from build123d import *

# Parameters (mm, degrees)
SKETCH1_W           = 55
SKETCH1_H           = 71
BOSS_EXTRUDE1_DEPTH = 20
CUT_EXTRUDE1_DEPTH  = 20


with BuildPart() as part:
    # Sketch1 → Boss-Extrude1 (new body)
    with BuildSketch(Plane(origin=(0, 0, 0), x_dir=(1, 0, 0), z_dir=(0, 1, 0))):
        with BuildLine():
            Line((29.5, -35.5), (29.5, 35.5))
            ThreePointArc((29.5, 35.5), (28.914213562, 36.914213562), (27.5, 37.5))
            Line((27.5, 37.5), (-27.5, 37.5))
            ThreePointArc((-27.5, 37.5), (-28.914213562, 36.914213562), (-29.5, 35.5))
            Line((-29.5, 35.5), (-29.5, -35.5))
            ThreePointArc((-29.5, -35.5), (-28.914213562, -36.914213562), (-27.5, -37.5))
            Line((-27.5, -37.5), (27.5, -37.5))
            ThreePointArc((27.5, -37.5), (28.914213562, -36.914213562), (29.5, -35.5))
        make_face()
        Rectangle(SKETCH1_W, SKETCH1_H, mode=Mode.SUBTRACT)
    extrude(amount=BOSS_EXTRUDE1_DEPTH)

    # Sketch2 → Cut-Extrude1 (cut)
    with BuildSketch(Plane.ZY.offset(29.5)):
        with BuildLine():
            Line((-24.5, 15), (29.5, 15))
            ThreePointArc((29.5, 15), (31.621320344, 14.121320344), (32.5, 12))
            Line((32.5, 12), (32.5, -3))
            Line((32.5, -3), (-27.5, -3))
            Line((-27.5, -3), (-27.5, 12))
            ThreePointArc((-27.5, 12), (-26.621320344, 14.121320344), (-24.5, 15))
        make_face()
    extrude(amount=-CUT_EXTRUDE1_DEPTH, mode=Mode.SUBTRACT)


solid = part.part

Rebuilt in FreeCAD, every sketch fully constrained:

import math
import FreeCAD as App
import Part
import Sketcher

V = App.Vector

doc = App.newDocument("Part")
body = doc.addObject("PartDesign::Body", "Body")

sketch1 = body.newObject("Sketcher::SketchObject", "Sketch")
sketch1.AttachmentSupport = (doc.getObject("XZ_Plane"), [""])
sketch1.MapMode = "FlatFace"
sketch1.addGeometry(Part.LineSegment(V(29.5, 35.5, 0), V(29.5, -35.5, 0)), False)
sketch1.addGeometry(Part.ArcOfCircle(Part.Circle(V(27.5, -35.5, 0), V(0, 0, 1), 2), math.radians(-90), math.radians(0)), False)
sketch1.addGeometry(Part.LineSegment(V(27.5, -37.5, 0), V(-27.5, -37.5, 0)), False)
sketch1.addGeometry(Part.ArcOfCircle(Part.Circle(V(-27.5, -35.5, 0), V(0, 0, 1), 2), math.radians(-180), math.radians(-90)), False)
sketch1.addGeometry(Part.LineSegment(V(-29.5, -35.5, 0), V(-29.5, 35.5, 0)), False)
sketch1.addGeometry(Part.ArcOfCircle(Part.Circle(V(-27.5, 35.5, 0), V(0, 0, 1), 2), math.radians(90), math.radians(180)), False)
sketch1.addGeometry(Part.LineSegment(V(-27.5, 37.5, 0), V(27.5, 37.5, 0)), False)
sketch1.addGeometry(Part.ArcOfCircle(Part.Circle(V(27.5, 35.5, 0), V(0, 0, 1), 2), math.radians(0), math.radians(90)), False)
sketch1.addGeometry(Part.LineSegment(V(27.5, 35.5, 0), V(-27.5, 35.5, 0)), False)
sketch1.addGeometry(Part.LineSegment(V(-27.5, 35.5, 0), V(-27.5, -35.5, 0)), False)
sketch1.addGeometry(Part.LineSegment(V(-27.5, -35.5, 0), V(27.5, -35.5, 0)), False)
sketch1.addGeometry(Part.LineSegment(V(27.5, -35.5, 0), V(27.5, 35.5, 0)), False)
sketch1.addConstraint(Sketcher.Constraint("Tangent", 0, 2, 1, 2))
sketch1.addConstraint(Sketcher.Constraint("Tangent", 1, 1, 2, 1))
sketch1.addConstraint(Sketcher.Constraint("Tangent", 2, 2, 3, 2))
sketch1.addConstraint(Sketcher.Constraint("Tangent", 3, 1, 4, 1))
sketch1.addConstraint(Sketcher.Constraint("Tangent", 4, 2, 5, 2))
sketch1.addConstraint(Sketcher.Constraint("Tangent", 5, 1, 6, 1))
sketch1.addConstraint(Sketcher.Constraint("Tangent", 6, 2, 7, 2))
sketch1.addConstraint(Sketcher.Constraint("Tangent", 7, 1, 0, 1))
sketch1.addConstraint(Sketcher.Constraint("Coincident", 8, 2, 9, 1))
sketch1.addConstraint(Sketcher.Constraint("Coincident", 9, 2, 10, 1))
sketch1.addConstraint(Sketcher.Constraint("Coincident", 10, 2, 11, 1))
sketch1.addConstraint(Sketcher.Constraint("Coincident", 11, 2, 8, 1))
sketch1.addConstraint(Sketcher.Constraint("Vertical", 0))
sketch1.addConstraint(Sketcher.Constraint("Horizontal", 2))
sketch1.addConstraint(Sketcher.Constraint("Vertical", 4))
sketch1.addConstraint(Sketcher.Constraint("Horizontal", 6))
sketch1.addConstraint(Sketcher.Constraint("Horizontal", 8))
sketch1.addConstraint(Sketcher.Constraint("Vertical", 9))
sketch1.addConstraint(Sketcher.Constraint("Horizontal", 10))
sketch1.addConstraint(Sketcher.Constraint("Vertical", 11))
sketch1.addConstraint(Sketcher.Constraint("Coincident", 8, 2, 5, 3))
sketch1.addConstraint(Sketcher.Constraint("Coincident", 9, 2, 3, 3))
sketch1.addConstraint(Sketcher.Constraint("Coincident", 10, 2, 1, 3))
sketch1.addConstraint(Sketcher.Constraint("Equal", 5, 7))
sketch1.addConstraint(Sketcher.Constraint("Symmetric", 1, 3, 5, 3, -1, 1))
sketch1.addConstraint(Sketcher.Constraint("Radius", 1, 2.0))
sketch1.addConstraint(Sketcher.Constraint("DistanceX", 2, 2, 2, 1, 55.0))
sketch1.addConstraint(Sketcher.Constraint("DistanceY", 0, 2, 0, 1, 71.0))
pad1 = body.newObject("PartDesign::Pad", "Pad")
pad1.Profile = sketch1
pad1.Length = 20
pad1.Reversed = True

sketch2 = body.newObject("Sketcher::SketchObject", "Sketch001")
sketch2.AttachmentSupport = (doc.getObject("YZ_Plane"), [""])
sketch2.MapMode = "FlatFace"
sketch2.AttachmentOffset = App.Placement(V(0, 0, -29.5), App.Rotation())
sketch2.addGeometry(Part.LineSegment(V(15, 29.5, 0), V(15, -24.5, 0)), False)
sketch2.addGeometry(Part.ArcOfCircle(Part.Circle(V(12, -24.5, 0), V(0, 0, 1), 3), math.radians(-90), math.radians(0)), False)
sketch2.addGeometry(Part.LineSegment(V(12, -27.5, 0), V(-3, -27.5, 0)), False)
sketch2.addGeometry(Part.LineSegment(V(-3, -27.5, 0), V(-3, 32.5, 0)), False)
sketch2.addGeometry(Part.LineSegment(V(-3, 32.5, 0), V(12, 32.5, 0)), False)
sketch2.addGeometry(Part.ArcOfCircle(Part.Circle(V(12, 29.5, 0), V(0, 0, 1), 3), math.radians(0), math.radians(90)), False)
sketch2.addConstraint(Sketcher.Constraint("Tangent", 0, 2, 1, 2))
sketch2.addConstraint(Sketcher.Constraint("Tangent", 1, 1, 2, 1))
sketch2.addConstraint(Sketcher.Constraint("Coincident", 2, 2, 3, 1))
sketch2.addConstraint(Sketcher.Constraint("Coincident", 3, 2, 4, 1))
sketch2.addConstraint(Sketcher.Constraint("Tangent", 4, 2, 5, 2))
sketch2.addConstraint(Sketcher.Constraint("Tangent", 5, 1, 0, 1))
sketch2.addConstraint(Sketcher.Constraint("Vertical", 0))
sketch2.addConstraint(Sketcher.Constraint("Horizontal", 2))
sketch2.addConstraint(Sketcher.Constraint("Vertical", 3))
sketch2.addConstraint(Sketcher.Constraint("Horizontal", 4))
sketch2.addConstraint(Sketcher.Constraint("Equal", 1, 5))
sketch2.addConstraint(Sketcher.Constraint("Radius", 1, 3.0))
sketch2.addConstraint(Sketcher.Constraint("DistanceX", 2, 2, 2, 1, 15.0))
sketch2.addConstraint(Sketcher.Constraint("DistanceY", 0, 2, 0, 1, 54.0))
sketch2.addConstraint(Sketcher.Constraint("DistanceX", -1, 1, 1, 3, 12.0))
sketch2.addConstraint(Sketcher.Constraint("DistanceY", 1, 3, -1, 1, 24.5))
pocket1 = body.newObject("PartDesign::Pocket", "Pocket")
pocket1.Profile = sketch2
pocket1.Length = 20
pocket1.Reversed = True

doc.recompute()
